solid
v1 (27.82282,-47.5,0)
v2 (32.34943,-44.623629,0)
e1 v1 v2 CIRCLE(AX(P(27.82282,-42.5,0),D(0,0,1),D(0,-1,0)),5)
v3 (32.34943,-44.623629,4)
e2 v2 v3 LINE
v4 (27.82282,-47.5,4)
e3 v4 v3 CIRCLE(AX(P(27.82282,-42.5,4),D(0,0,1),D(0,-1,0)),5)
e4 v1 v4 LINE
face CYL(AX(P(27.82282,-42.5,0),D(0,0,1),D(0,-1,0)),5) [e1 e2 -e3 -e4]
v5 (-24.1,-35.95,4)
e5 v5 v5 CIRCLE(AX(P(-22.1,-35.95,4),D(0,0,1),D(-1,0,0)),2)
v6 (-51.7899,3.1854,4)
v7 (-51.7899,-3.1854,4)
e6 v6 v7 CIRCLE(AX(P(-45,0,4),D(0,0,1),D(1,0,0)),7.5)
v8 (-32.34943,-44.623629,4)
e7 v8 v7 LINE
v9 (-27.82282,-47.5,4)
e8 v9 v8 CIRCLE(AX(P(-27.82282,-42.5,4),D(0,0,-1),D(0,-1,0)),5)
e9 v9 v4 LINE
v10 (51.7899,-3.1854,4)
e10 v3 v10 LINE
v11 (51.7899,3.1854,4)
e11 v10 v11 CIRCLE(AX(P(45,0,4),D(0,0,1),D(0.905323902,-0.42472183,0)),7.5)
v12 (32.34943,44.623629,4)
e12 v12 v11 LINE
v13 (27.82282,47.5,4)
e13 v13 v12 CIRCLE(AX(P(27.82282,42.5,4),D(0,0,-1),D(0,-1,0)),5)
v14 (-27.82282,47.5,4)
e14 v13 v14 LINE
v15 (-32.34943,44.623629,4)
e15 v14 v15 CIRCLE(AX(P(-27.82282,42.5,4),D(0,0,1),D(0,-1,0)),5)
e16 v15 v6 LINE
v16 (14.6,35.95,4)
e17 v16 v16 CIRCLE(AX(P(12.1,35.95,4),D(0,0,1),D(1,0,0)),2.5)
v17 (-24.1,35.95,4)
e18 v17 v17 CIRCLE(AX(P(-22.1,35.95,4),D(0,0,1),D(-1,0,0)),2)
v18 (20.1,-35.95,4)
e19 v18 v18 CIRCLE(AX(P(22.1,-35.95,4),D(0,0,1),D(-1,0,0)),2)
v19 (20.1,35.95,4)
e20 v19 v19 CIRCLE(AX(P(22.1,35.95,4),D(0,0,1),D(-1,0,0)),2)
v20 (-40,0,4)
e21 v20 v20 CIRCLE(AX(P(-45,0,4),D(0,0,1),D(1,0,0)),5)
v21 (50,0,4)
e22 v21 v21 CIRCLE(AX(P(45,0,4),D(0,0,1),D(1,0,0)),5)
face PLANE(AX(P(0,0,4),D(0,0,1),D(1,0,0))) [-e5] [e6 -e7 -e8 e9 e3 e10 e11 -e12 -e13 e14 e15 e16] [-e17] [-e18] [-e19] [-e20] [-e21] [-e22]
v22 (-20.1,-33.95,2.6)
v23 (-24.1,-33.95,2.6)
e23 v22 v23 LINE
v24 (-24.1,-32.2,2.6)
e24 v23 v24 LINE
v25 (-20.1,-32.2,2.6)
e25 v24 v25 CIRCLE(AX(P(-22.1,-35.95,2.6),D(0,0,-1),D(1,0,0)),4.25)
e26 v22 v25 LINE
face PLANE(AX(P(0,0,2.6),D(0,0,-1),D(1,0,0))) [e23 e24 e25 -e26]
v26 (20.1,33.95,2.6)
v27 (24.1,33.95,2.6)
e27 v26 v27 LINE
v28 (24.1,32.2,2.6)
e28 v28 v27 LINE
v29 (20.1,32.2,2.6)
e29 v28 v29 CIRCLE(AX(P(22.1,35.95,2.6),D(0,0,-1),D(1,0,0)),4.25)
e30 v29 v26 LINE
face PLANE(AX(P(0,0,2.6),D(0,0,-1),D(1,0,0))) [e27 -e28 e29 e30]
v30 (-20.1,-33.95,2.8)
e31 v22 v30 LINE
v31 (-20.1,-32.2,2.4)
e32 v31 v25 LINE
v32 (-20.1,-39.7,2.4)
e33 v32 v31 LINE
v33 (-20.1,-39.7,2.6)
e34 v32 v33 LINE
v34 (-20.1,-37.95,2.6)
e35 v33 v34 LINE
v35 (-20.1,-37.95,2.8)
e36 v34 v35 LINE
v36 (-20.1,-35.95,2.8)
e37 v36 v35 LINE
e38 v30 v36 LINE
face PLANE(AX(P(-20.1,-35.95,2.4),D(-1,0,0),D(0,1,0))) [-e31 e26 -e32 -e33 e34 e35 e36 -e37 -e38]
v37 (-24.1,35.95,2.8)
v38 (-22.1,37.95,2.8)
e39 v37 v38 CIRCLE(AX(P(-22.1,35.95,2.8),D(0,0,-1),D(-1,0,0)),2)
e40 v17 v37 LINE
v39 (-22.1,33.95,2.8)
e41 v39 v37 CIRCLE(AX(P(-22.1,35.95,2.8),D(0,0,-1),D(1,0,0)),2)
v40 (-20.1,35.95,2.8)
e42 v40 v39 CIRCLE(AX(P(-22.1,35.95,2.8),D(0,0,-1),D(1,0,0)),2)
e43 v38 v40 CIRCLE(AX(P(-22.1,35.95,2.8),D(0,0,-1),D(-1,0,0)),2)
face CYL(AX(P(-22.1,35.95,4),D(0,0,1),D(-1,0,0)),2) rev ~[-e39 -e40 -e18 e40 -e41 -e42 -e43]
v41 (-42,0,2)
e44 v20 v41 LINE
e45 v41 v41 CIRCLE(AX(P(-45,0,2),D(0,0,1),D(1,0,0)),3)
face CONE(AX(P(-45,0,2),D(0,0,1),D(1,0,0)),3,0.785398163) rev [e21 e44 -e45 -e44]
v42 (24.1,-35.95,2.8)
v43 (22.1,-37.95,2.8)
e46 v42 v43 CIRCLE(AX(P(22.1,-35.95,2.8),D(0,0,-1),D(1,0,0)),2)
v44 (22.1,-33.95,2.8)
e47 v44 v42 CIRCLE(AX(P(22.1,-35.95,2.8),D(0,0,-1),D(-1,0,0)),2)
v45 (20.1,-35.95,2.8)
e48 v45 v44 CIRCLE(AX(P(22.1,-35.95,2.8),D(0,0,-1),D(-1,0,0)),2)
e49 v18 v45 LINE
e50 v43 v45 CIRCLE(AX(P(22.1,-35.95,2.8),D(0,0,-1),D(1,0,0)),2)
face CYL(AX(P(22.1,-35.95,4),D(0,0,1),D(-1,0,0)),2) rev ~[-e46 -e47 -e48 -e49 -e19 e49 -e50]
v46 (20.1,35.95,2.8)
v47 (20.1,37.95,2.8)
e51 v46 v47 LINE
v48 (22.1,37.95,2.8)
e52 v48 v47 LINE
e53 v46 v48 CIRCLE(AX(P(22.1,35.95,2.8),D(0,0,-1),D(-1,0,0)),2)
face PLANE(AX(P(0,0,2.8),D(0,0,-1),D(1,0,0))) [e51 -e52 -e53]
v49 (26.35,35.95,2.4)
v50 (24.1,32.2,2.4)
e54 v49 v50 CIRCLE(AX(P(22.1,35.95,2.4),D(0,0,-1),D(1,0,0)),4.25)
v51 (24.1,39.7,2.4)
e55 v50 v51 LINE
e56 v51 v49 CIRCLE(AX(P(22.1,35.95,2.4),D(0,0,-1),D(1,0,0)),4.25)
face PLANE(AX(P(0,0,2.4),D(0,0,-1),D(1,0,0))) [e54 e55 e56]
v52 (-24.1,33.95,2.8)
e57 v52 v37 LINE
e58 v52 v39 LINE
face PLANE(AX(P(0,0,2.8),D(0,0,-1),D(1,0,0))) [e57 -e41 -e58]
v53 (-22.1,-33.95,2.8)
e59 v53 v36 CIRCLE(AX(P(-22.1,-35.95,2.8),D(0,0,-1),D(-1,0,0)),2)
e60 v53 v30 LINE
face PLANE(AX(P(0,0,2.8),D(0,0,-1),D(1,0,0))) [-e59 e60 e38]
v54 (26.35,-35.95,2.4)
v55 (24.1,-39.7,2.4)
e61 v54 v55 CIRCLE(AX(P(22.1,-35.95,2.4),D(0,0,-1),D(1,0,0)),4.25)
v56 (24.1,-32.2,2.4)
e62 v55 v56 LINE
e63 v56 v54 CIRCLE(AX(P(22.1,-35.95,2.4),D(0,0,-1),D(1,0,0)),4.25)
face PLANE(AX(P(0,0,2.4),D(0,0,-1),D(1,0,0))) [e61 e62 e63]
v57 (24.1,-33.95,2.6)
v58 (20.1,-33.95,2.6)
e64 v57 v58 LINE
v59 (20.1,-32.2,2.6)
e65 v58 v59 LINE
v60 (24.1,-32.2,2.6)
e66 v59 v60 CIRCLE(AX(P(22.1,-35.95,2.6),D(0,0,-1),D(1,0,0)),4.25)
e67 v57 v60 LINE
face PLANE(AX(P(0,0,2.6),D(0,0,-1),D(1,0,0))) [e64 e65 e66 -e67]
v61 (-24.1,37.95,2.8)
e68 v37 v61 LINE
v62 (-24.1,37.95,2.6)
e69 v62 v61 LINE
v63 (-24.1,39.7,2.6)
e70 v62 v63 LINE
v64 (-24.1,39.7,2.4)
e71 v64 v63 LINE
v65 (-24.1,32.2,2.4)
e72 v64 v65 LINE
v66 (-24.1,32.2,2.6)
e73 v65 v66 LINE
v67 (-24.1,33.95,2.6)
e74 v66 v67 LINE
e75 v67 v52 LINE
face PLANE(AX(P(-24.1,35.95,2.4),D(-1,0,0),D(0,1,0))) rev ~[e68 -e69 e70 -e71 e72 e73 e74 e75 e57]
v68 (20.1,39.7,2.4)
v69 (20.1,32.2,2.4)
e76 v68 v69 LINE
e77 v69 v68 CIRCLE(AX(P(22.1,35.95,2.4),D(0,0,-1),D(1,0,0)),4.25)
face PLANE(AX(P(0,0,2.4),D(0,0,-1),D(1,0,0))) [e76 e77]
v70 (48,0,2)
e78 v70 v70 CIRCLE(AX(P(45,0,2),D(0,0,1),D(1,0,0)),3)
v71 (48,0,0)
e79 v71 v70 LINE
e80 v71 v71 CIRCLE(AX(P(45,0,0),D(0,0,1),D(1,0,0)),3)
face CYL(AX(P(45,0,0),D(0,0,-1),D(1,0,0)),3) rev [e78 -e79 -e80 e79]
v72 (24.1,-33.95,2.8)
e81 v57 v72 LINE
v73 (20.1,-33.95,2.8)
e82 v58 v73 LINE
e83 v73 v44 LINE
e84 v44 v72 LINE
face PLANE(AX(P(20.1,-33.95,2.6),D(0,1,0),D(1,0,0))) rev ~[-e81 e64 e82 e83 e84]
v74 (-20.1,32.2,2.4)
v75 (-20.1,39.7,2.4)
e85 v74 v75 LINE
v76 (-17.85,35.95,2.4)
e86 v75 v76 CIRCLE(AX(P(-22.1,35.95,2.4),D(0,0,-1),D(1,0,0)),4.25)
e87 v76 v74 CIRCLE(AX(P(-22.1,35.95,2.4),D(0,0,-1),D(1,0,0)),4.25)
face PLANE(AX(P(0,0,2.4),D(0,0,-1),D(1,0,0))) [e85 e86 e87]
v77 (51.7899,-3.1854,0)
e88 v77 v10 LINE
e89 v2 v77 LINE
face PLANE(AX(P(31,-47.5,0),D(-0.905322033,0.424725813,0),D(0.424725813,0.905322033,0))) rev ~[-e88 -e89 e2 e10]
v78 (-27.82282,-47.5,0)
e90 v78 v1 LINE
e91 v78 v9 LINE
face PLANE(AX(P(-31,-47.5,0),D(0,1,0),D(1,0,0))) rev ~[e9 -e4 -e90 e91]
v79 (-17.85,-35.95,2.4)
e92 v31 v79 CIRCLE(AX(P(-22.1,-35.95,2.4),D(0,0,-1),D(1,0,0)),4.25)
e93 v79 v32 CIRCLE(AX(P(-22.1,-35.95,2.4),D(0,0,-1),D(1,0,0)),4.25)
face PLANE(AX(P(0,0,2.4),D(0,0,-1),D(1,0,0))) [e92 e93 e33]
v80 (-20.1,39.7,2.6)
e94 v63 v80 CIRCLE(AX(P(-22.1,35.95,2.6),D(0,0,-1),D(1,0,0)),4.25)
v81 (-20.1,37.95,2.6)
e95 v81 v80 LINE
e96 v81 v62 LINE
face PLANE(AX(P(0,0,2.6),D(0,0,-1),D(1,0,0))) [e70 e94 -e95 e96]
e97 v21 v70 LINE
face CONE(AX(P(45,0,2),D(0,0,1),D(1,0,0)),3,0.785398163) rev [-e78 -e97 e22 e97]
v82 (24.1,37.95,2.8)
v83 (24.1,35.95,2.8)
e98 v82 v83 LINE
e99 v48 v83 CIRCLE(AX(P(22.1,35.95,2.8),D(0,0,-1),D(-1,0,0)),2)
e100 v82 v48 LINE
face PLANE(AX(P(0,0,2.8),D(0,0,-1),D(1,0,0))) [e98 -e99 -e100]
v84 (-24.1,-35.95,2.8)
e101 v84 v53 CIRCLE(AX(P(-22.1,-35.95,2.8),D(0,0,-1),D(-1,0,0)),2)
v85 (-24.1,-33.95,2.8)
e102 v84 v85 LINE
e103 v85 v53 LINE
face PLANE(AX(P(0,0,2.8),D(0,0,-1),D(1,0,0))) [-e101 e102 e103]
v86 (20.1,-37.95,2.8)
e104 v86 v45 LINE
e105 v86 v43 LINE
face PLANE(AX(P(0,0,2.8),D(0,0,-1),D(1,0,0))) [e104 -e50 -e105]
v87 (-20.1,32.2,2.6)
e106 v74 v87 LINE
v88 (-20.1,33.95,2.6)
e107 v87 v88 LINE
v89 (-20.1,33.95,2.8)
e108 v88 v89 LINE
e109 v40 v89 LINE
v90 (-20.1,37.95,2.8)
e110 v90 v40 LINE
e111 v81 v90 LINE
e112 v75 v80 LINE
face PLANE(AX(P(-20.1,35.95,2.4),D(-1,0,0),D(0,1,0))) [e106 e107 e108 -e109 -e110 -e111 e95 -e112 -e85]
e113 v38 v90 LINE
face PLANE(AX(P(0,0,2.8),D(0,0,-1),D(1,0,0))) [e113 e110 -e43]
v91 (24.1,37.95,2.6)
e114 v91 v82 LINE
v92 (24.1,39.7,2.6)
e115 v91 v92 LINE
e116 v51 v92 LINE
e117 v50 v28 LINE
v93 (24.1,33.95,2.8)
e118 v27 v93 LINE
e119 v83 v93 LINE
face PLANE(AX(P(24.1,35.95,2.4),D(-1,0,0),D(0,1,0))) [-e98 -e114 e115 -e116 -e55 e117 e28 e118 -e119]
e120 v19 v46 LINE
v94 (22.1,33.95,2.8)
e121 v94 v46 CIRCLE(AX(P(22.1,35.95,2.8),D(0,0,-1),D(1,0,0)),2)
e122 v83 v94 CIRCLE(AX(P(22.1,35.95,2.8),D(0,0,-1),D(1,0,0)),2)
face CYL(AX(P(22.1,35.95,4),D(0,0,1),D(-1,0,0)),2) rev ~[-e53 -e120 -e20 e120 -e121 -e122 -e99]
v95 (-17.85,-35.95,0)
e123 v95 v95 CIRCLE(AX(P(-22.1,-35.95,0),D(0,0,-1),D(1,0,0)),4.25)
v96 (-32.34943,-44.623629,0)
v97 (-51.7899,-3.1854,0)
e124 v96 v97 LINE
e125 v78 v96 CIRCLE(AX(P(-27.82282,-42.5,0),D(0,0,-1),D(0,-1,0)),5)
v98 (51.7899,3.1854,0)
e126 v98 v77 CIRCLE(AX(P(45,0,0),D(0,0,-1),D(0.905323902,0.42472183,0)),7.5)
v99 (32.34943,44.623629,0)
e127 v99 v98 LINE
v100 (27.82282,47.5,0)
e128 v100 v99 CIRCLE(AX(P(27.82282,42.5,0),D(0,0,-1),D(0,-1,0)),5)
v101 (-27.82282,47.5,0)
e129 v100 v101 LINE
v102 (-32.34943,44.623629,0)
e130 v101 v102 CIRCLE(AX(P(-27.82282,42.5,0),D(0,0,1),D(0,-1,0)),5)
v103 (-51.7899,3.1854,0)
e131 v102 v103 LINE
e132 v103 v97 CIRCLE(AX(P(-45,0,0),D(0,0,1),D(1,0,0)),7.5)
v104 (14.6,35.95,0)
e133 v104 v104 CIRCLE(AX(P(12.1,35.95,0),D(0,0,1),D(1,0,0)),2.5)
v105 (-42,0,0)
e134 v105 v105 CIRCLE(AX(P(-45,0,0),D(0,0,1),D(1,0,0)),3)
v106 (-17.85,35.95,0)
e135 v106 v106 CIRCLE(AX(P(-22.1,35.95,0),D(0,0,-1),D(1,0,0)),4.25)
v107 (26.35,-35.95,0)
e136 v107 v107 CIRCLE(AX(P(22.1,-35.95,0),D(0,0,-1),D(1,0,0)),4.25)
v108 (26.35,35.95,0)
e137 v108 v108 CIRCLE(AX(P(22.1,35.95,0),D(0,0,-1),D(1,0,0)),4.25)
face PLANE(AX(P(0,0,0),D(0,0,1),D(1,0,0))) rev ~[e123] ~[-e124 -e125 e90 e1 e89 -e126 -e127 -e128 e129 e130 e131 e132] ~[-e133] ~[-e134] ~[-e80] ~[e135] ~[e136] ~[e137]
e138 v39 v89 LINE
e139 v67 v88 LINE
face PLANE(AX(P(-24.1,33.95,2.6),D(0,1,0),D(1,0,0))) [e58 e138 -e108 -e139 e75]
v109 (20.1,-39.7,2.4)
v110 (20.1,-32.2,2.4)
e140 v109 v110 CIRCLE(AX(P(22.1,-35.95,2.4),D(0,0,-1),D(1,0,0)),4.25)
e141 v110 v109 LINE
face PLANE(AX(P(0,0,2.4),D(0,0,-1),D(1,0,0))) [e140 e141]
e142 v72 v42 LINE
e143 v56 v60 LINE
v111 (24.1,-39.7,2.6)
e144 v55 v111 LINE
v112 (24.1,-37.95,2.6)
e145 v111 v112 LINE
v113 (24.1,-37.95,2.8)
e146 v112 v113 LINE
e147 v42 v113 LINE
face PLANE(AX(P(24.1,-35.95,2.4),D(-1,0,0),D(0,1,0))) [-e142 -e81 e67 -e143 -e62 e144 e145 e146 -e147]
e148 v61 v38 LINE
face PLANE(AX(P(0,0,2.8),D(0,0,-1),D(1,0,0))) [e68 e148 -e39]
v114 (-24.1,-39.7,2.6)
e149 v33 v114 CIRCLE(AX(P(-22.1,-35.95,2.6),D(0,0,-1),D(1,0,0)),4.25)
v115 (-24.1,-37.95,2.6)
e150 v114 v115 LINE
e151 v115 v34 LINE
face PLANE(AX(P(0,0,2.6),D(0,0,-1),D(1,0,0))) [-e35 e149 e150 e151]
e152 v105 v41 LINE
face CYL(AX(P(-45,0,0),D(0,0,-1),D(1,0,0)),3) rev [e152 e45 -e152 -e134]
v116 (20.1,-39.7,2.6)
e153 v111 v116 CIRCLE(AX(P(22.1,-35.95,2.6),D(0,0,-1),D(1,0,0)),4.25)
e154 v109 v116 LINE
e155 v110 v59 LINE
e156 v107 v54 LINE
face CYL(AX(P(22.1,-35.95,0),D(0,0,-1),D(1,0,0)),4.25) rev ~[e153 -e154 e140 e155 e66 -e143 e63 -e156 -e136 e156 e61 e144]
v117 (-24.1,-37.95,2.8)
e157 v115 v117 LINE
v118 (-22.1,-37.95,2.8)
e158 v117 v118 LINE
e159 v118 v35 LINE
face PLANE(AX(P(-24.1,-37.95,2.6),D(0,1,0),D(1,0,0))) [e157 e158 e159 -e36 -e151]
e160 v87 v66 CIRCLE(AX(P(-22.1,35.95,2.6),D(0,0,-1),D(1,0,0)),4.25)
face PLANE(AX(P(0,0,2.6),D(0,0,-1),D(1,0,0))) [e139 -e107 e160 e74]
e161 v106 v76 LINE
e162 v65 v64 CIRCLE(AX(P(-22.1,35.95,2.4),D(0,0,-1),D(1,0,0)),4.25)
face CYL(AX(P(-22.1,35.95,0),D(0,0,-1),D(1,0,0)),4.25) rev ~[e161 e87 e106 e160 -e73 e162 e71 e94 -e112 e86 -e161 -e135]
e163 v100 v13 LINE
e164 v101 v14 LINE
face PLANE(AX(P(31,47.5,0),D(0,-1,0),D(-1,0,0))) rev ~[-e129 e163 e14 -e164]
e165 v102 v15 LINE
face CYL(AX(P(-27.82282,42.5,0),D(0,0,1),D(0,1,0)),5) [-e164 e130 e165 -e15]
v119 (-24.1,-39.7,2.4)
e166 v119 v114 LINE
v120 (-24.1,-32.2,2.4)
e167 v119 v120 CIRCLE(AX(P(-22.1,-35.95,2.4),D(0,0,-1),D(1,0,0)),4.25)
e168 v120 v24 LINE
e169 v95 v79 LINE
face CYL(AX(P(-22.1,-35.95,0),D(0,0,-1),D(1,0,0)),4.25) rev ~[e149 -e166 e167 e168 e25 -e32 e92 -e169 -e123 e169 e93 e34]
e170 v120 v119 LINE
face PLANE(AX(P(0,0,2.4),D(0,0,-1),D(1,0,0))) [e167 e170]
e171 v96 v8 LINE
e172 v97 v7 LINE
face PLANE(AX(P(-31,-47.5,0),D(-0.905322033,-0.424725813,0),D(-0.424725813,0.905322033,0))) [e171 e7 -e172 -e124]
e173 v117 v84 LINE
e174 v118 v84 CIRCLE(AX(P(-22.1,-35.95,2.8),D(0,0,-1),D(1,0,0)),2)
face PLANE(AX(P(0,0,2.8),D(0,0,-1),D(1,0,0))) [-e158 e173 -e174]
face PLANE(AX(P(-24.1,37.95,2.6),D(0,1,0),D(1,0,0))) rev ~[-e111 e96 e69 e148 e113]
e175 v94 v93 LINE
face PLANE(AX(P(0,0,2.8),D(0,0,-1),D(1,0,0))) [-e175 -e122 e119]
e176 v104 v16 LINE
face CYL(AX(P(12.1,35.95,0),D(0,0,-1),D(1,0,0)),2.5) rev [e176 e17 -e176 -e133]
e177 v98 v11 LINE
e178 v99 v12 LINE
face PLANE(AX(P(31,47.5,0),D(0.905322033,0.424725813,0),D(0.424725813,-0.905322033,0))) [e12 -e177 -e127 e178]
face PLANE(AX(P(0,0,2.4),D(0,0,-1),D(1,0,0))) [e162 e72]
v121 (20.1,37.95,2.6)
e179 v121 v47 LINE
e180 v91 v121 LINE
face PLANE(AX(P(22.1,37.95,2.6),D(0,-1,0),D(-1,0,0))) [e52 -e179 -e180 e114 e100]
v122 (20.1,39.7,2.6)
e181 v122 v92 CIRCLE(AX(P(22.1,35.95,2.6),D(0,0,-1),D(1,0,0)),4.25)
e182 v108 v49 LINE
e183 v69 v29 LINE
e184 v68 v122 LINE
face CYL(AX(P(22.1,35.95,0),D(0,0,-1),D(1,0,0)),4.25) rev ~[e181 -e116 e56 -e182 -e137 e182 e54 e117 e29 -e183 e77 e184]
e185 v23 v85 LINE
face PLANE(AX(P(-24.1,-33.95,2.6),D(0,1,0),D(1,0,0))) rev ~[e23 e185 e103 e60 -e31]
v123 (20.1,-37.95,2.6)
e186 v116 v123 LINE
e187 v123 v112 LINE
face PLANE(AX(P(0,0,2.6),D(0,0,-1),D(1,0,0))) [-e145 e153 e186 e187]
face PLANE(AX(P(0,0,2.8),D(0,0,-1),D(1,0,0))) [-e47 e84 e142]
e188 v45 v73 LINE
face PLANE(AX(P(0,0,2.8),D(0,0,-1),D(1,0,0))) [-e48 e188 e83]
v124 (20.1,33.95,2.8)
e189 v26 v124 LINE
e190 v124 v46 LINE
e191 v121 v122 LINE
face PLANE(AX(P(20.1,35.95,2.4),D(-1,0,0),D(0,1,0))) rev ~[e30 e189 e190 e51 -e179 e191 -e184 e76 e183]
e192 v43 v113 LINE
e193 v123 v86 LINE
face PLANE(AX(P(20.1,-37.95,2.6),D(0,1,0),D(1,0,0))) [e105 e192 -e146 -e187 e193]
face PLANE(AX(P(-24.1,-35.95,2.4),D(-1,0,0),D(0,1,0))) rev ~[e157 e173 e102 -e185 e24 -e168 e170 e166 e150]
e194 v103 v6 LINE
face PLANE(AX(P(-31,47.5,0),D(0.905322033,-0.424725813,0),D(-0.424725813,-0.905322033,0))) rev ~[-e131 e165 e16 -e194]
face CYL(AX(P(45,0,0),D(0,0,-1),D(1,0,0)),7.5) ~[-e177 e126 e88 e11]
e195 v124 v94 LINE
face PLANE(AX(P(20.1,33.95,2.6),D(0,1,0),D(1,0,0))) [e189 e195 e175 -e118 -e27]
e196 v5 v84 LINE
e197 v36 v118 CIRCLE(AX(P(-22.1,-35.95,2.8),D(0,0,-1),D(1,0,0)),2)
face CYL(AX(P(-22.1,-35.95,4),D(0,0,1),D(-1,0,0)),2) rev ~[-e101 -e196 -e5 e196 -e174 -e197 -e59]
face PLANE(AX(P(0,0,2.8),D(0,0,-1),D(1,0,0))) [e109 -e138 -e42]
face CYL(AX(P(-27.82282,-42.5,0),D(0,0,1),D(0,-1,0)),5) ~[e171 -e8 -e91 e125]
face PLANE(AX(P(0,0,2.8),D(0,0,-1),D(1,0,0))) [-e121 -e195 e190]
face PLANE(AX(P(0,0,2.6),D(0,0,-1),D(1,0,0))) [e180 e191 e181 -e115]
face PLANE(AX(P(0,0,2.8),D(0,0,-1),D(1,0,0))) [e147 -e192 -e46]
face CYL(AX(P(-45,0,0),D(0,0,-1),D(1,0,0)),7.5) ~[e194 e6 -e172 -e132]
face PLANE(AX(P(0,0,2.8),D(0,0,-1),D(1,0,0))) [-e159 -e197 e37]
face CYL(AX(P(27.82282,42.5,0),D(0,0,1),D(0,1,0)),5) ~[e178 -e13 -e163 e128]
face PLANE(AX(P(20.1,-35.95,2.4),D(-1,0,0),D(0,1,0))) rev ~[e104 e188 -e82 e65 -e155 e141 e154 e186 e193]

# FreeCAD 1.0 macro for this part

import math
import FreeCAD as App
import Part
import Sketcher
Q = App.Units.Quantity


def edges_at(feature, points):
    """Names of the edges that pass closest to the given points."""
    edges = feature.Shape.Edges
    near = lambda p: min(range(len(edges)), key=lambda i: edges[i].distToShape(Part.Vertex(*p))[0])
    return sorted({f"Edge{near(p) + 1}" for p in points})

doc = App.newDocument("Part")
body = doc.addObject("PartDesign::Body", "Body")

sketch1 = doc.addObject("Sketcher::SketchObject", "Sketch")
body.addObject(sketch1)
sketch1.AttachmentSupport = (doc.XY_Plane, [""])
sketch1.MapMode = "FlatFace"
sketch1.addGeometry(Part.LineSegment(App.Vector(-31, -47.5, 0), App.Vector(31, -47.5, 0)), False)
sketch1.addGeometry(Part.LineSegment(App.Vector(31, -47.5, 0), App.Vector(51.7899, -3.1854, 0)), False)
sketch1.addGeometry(Part.ArcOfCircle(Part.Circle(App.Vector(45, 0, 0), App.Vector(0, 0, 1), 7.5), math.radians(-25.133057), math.radians(25.133057)), False)
sketch1.addGeometry(Part.LineSegment(App.Vector(51.7899, 3.1854, 0), App.Vector(31, 47.5, 0)), False)
sketch1.addGeometry(Part.LineSegment(App.Vector(31, 47.5, 0), App.Vector(-31, 47.5, 0)), False)
sketch1.addGeometry(Part.LineSegment(App.Vector(-31, 47.5, 0), App.Vector(-51.7899, 3.1854, 0)), False)
sketch1.addGeometry(Part.ArcOfCircle(Part.Circle(App.Vector(-45, 0, 0), App.Vector(0, 0, 1), 7.5), math.radians(154.866943), math.radians(205.133057)), False)
sketch1.addGeometry(Part.LineSegment(App.Vector(-51.7899, -3.1854, 0), App.Vector(-31, -47.5, 0)), False)
sketch1.addGeometry(Part.Circle(App.Vector(-22.1, -35.95, 0), App.Vector(0, 0, 1), 1.7), False)
sketch1.addGeometry(Part.Circle(App.Vector(22.1, -35.95, 0), App.Vector(0, 0, 1), 1.7), False)
sketch1.addGeometry(Part.Circle(App.Vector(-22.1, 35.95, 0), App.Vector(0, 0, 1), 1.7), False)
sketch1.addGeometry(Part.Circle(App.Vector(12.1, 35.95, 0), App.Vector(0, 0, 1), 2.5), False)
sketch1.addGeometry(Part.Circle(App.Vector(22.1, 35.95, 0), App.Vector(0, 0, 1), 1.7), False)
sketch1.addGeometry(Part.Circle(App.Vector(45, 0, 0), App.Vector(0, 0, 1), 3), False)
sketch1.addGeometry(Part.Circle(App.Vector(-45, 0, 0), App.Vector(0, 0, 1), 3), False)
sketch1.addConstraint(Sketcher.Constraint("Coincident", 0, 2, 1, 1))
sketch1.addConstraint(Sketcher.Constraint("Tangent", 1, 2, 2, 1))
sketch1.addConstraint(Sketcher.Constraint("Tangent", 2, 2, 3, 1))
sketch1.addConstraint(Sketcher.Constraint("Coincident", 3, 2, 4, 1))
sketch1.addConstraint(Sketcher.Constraint("Coincident", 4, 2, 5, 1))
sketch1.addConstraint(Sketcher.Constraint("Tangent", 5, 2, 6, 1))
sketch1.addConstraint(Sketcher.Constraint("Tangent", 6, 2, 7, 1))
sketch1.addConstraint(Sketcher.Constraint("Coincident", 7, 2, 0, 1))
sketch1.addConstraint(Sketcher.Constraint("Horizontal", 0))
sketch1.addConstraint(Sketcher.Constraint("Horizontal", 4))
sketch1.addConstraint(Sketcher.Constraint("Coincident", 13, 3, 2, 3))
sketch1.addConstraint(Sketcher.Constraint("Coincident", 14, 3, 6, 3))
sketch1.addConstraint(Sketcher.Constraint("Equal", 2, 6))
sketch1.addConstraint(Sketcher.Constraint("Equal", 8, 9))
sketch1.addConstraint(Sketcher.Constraint("Equal", 9, 10))
sketch1.addConstraint(Sketcher.Constraint("Equal", 10, 12))
sketch1.addConstraint(Sketcher.Constraint("Equal", 13, 14))
sketch1.addConstraint(Sketcher.Constraint("Symmetric", 2, 3, 6, 3, -1, 1))
sketch1.addConstraint(Sketcher.Constraint("Symmetric", 9, 3, 10, 3, -1, 1))
sketch1.addConstraint(Sketcher.Constraint("Symmetric", 8, 3, 12, 3, -1, 1))
sketch1.addConstraint(Sketcher.Constraint("Symmetric", 0, 2, 4, 2, -1, 1))
sketch1.addConstraint(Sketcher.Constraint("Symmetric", 8, 3, 9, 3, -2))
sketch1.addConstraint(Sketcher.Constraint("Symmetric", 2, 2, 5, 2, -2))
sketch1.addConstraint(Sketcher.Constraint("Parallel", 3, 7))
sketch1.addConstraint(Sketcher.Constraint("Horizontal", 10, 3, 11, 3))
sketch1.addConstraint(Sketcher.Constraint("Diameter", 11, Q("5 mm")))
sketch1.addConstraint(Sketcher.Constraint("Diameter", 13, Q("6 mm")))
sketch1.addConstraint(Sketcher.Constraint("Radius", 2, Q("7.5 mm")))
sketch1.addConstraint(Sketcher.Constraint("DistanceX", 0, 1, 0, 2, Q("62 mm")))
sketch1.addConstraint(Sketcher.Constraint("DistanceX", -1, 1, 2, 3, Q("45 mm")))
sketch1.addConstraint(Sketcher.Constraint("DistanceX", 11, 3, 9, 3, Q("10 mm")))
sketch1.addConstraint(Sketcher.Constraint("Diameter", 8, Q("3.4 mm")))
sketch1.addConstraint(Sketcher.Constraint("DistanceX", 8, 3, -1, 1, Q("22.1 mm")))
sketch1.addConstraint(Sketcher.Constraint("DistanceY", 0, 2, -1, 1, Q("47.5 mm")))
sketch1.addConstraint(Sketcher.Constraint("DistanceY", 8, 3, 10, 3, Q("71.9 mm")))
pad1 = doc.addObject("PartDesign::Pad", "Pad")
body.addObject(pad1)
pad1.Profile = sketch1
pad1.Length = 4
doc.recompute()

fillet = doc.addObject("PartDesign::Fillet", "Fillet")
body.addObject(fillet)
fillet.Base = (pad1, edges_at(pad1, [
    (31, 47.5, 2),
    (-31, 47.5, 2),
    (31, -47.5, 2),
    (-31, -47.5, 2),
]))
fillet.Radius = 5

sketch2 = doc.addObject("Sketcher::SketchObject", "Sketch001")
body.addObject(sketch2)
sketch2.AttachmentSupport = (doc.XY_Plane, [""])
sketch2.MapMode = "FlatFace"
sketch2.addGeometry(Part.Circle(App.Vector(22.1, 35.95, 0), App.Vector(0, 0, 1), 4.25), False)
sketch2.addGeometry(Part.Circle(App.Vector(22.1, 35.95, 0), App.Vector(0, 0, 1), 1.7), False)
sketch2.addGeometry(Part.Circle(App.Vector(-22.1, 35.95, 0), App.Vector(0, 0, 1), 4.25), False)
sketch2.addGeometry(Part.Circle(App.Vector(-22.1, 35.95, 0), App.Vector(0, 0, 1), 1.7), False)
sketch2.addGeometry(Part.Circle(App.Vector(-22.1, -35.95, 0), App.Vector(0, 0, 1), 4.25), False)
sketch2.addGeometry(Part.Circle(App.Vector(-22.1, -35.95, 0), App.Vector(0, 0, 1), 1.7), False)
sketch2.addGeometry(Part.Circle(App.Vector(22.1, -35.95, 0), App.Vector(0, 0, 1), 4.25), False)
sketch2.addGeometry(Part.Circle(App.Vector(22.1, -35.95, 0), App.Vector(0, 0, 1), 1.7), False)
sketch2.addConstraint(Sketcher.Constraint("Coincident", 1, 3, 0, 3))
sketch2.addConstraint(Sketcher.Constraint("Coincident", 3, 3, 2, 3))
sketch2.addConstraint(Sketcher.Constraint("Coincident", 5, 3, 4, 3))
sketch2.addConstraint(Sketcher.Constraint("Coincident", 7, 3, 6, 3))
sketch2.addConstraint(Sketcher.Constraint("Equal", 0, 2))
sketch2.addConstraint(Sketcher.Constraint("Equal", 1, 3))
sketch2.addConstraint(Sketcher.Constraint("Equal", 2, 4))
sketch2.addConstraint(Sketcher.Constraint("Equal", 3, 5))
sketch2.addConstraint(Sketcher.Constraint("Equal", 4, 6))
sketch2.addConstraint(Sketcher.Constraint("Equal", 5, 7))
sketch2.addConstraint(Sketcher.Constraint("Symmetric", 0, 3, 4, 3, -1, 1))
sketch2.addConstraint(Sketcher.Constraint("Symmetric", 2, 3, 6, 3, -1, 1))
sketch2.addConstraint(Sketcher.Constraint("Symmetric", 0, 3, 2, 3, -2))
sketch2.addConstraint(Sketcher.Constraint("Diameter", 0, Q("8.5 mm")))
sketch2.addConstraint(Sketcher.Constraint("Diameter", 1, Q("3.4 mm")))
sketch2.addConstraint(Sketcher.Constraint("DistanceX", -1, 1, 0, 3, Q("22.1 mm")))
sketch2.addConstraint(Sketcher.Constraint("DistanceY", 4, 3, 2, 3, Q("71.9 mm")))
pocket1 = doc.addObject("PartDesign::Pocket", "Pocket")
body.addObject(pocket1)
pocket1.Profile = sketch2
pocket1.Length = 2.4
pocket1.Reversed = True

sketch3 = doc.addObject("Sketcher::SketchObject", "Sketch002")
body.addObject(sketch3)
sketch3.AttachmentSupport = (doc.XY_Plane, [""])
sketch3.MapMode = "FlatFace"
sketch3.AttachmentOffset = App.Placement(App.Vector(0, 0, 4), App.Rotation())
sketch3.addGeometry(Part.Circle(App.Vector(-22.1, 35.95, 0), App.Vector(0, 0, 1), 2), False)
sketch3.addGeometry(Part.Circle(App.Vector(-22.1, 35.95, 0), App.Vector(0, 0, 1), 1.7), False)
sketch3.addGeometry(Part.Circle(App.Vector(22.1, 35.95, 0), App.Vector(0, 0, 1), 2), False)
sketch3.addGeometry(Part.Circle(App.Vector(22.1, 35.95, 0), App.Vector(0, 0, 1), 1.7), False)
sketch3.addGeometry(Part.Circle(App.Vector(22.1, -35.95, 0), App.Vector(0, 0, 1), 2), False)
sketch3.addGeometry(Part.Circle(App.Vector(22.1, -35.95, 0), App.Vector(0, 0, 1), 1.7), False)
sketch3.addGeometry(Part.Circle(App.Vector(-22.1, -35.95, 0), App.Vector(0, 0, 1), 2), False)
sketch3.addGeometry(Part.Circle(App.Vector(-22.1, -35.95, 0), App.Vector(0, 0, 1), 1.7), False)
sketch3.addConstraint(Sketcher.Constraint("Coincident", 1, 3, 0, 3))
sketch3.addConstraint(Sketcher.Constraint("Coincident", 3, 3, 2, 3))
sketch3.addConstraint(Sketcher.Constraint("Coincident", 5, 3, 4, 3))
sketch3.addConstraint(Sketcher.Constraint("Coincident", 7, 3, 6, 3))
sketch3.addConstraint(Sketcher.Constraint("Equal", 0, 2))
sketch3.addConstraint(Sketcher.Constraint("Equal", 1, 3))
sketch3.addConstraint(Sketcher.Constraint("Equal", 2, 4))
sketch3.addConstraint(Sketcher.Constraint("Equal", 3, 5))
sketch3.addConstraint(Sketcher.Constraint("Equal", 4, 6))
sketch3.addConstraint(Sketcher.Constraint("Equal", 5, 7))
sketch3.addConstraint(Sketcher.Constraint("Symmetric", 0, 3, 4, 3, -1, 1))
sketch3.addConstraint(Sketcher.Constraint("Symmetric", 2, 3, 6, 3, -1, 1))
sketch3.addConstraint(Sketcher.Constraint("Symmetric", 0, 3, 2, 3, -2))
sketch3.addConstraint(Sketcher.Constraint("Diameter", 0, Q("4 mm")))
sketch3.addConstraint(Sketcher.Constraint("Diameter", 1, Q("3.4 mm")))
sketch3.addConstraint(Sketcher.Constraint("DistanceX", 0, 3, -1, 1, Q("22.1 mm")))
sketch3.addConstraint(Sketcher.Constraint("DistanceY", 4, 3, 2, 3, Q("71.9 mm")))
pocket2 = doc.addObject("PartDesign::Pocket", "Pocket001")
body.addObject(pocket2)
pocket2.Profile = sketch3
pocket2.Length = 1.6

sketch4 = doc.addObject("Sketcher::SketchObject", "Sketch003")
body.addObject(sketch4)
sketch4.AttachmentSupport = (doc.XY_Plane, [""])
sketch4.MapMode = "FlatFace"
sketch4.AttachmentOffset = App.Placement(App.Vector(0, 0, 2.4), App.Rotation())
sketch4.addGeometry(Part.LineSegment(App.Vector(-20.1, 39.7, 0), App.Vector(-20.1, 35.95, 0)), False)
sketch4.addGeometry(Part.ArcOfCircle(Part.Circle(App.Vector(-22.1, 35.95, 0), App.Vector(0, 0, 1), 2), math.radians(0), math.radians(180)), False)
sketch4.addGeometry(Part.LineSegment(App.Vector(-24.1, 35.95, 0), App.Vector(-24.1, 39.7, 0)), False)
sketch4.addGeometry(Part.ArcOfCircle(Part.Circle(App.Vector(-22.1, 35.95, 0), App.Vector(0, 0, 1), 4.25), math.radians(61.927513), math.radians(118.072487)), False)
sketch4.addGeometry(Part.ArcOfCircle(Part.Circle(App.Vector(-22.1, 35.95, 0), App.Vector(0, 0, 1), 2), math.radians(180), math.radians(360)), False)
sketch4.addGeometry(Part.LineSegment(App.Vector(-20.1, 35.95, 0), App.Vector(-20.1, 32.2, 0)), False)
sketch4.addGeometry(Part.ArcOfCircle(Part.Circle(App.Vector(-22.1, 35.95, 0), App.Vector(0, 0, 1), 4.25), math.radians(-118.072487), math.radians(-61.927513)), False)
sketch4.addGeometry(Part.LineSegment(App.Vector(-24.1, 32.2, 0), App.Vector(-24.1, 35.95, 0)), False)
sketch4.addGeometry(Part.LineSegment(App.Vector(-20.1, -32.2, 0), App.Vector(-20.1, -35.95, 0)), False)
sketch4.addGeometry(Part.ArcOfCircle(Part.Circle(App.Vector(-22.1, -35.95, 0), App.Vector(0, 0, 1), 2), math.radians(0), math.radians(180)), False)
sketch4.addGeometry(Part.LineSegment(App.Vector(-24.1, -35.95, 0), App.Vector(-24.1, -32.2, 0)), False)
sketch4.addGeometry(Part.ArcOfCircle(Part.Circle(App.Vector(-22.1, -35.95, 0), App.Vector(0, 0, 1), 4.25), math.radians(61.927513), math.radians(118.072487)), False)
sketch4.addGeometry(Part.ArcOfCircle(Part.Circle(App.Vector(-22.1, -35.95, 0), App.Vector(0, 0, 1), 2), math.radians(180), math.radians(360)), False)
sketch4.addGeometry(Part.LineSegment(App.Vector(-20.1, -35.95, 0), App.Vector(-20.1, -39.7, 0)), False)
sketch4.addGeometry(Part.ArcOfCircle(Part.Circle(App.Vector(-22.1, -35.95, 0), App.Vector(0, 0, 1), 4.25), math.radians(-118.072487), math.radians(-61.927513)), False)
sketch4.addGeometry(Part.LineSegment(App.Vector(-24.1, -39.7, 0), App.Vector(-24.1, -35.95, 0)), False)
sketch4.addGeometry(Part.LineSegment(App.Vector(24.1, -32.2, 0), App.Vector(24.1, -35.95, 0)), False)
sketch4.addGeometry(Part.ArcOfCircle(Part.Circle(App.Vector(22.1, -35.95, 0), App.Vector(0, 0, 1), 2), math.radians(0), math.radians(180)), False)
sketch4.addGeometry(Part.LineSegment(App.Vector(20.1, -35.95, 0), App.Vector(20.1, -32.2, 0)), False)
sketch4.addGeometry(Part.ArcOfCircle(Part.Circle(App.Vector(22.1, -35.95, 0), App.Vector(0, 0, 1), 4.25), math.radians(61.927513), math.radians(118.072487)), False)
sketch4.addGeometry(Part.ArcOfCircle(Part.Circle(App.Vector(22.1, -35.95, 0), App.Vector(0, 0, 1), 2), math.radians(180), math.radians(360)), False)
sketch4.addGeometry(Part.LineSegment(App.Vector(24.1, -35.95, 0), App.Vector(24.1, -39.7, 0)), False)
sketch4.addGeometry(Part.ArcOfCircle(Part.Circle(App.Vector(22.1, -35.95, 0), App.Vector(0, 0, 1), 4.25), math.radians(-118.072487), math.radians(-61.927513)), False)
sketch4.addGeometry(Part.LineSegment(App.Vector(20.1, -39.7, 0), App.Vector(20.1, -35.95, 0)), False)
sketch4.addGeometry(Part.LineSegment(App.Vector(24.1, 39.7, 0), App.Vector(24.1, 35.95, 0)), False)
sketch4.addGeometry(Part.ArcOfCircle(Part.Circle(App.Vector(22.1, 35.95, 0), App.Vector(0, 0, 1), 2), math.radians(0), math.radians(180)), False)
sketch4.addGeometry(Part.LineSegment(App.Vector(20.1, 35.95, 0), App.Vector(20.1, 39.7, 0)), False)
sketch4.addGeometry(Part.ArcOfCircle(Part.Circle(App.Vector(22.1, 35.95, 0), App.Vector(0, 0, 1), 4.25), math.radians(61.927513), math.radians(118.072487)), False)
sketch4.addGeometry(Part.ArcOfCircle(Part.Circle(App.Vector(22.1, 35.95, 0), App.Vector(0, 0, 1), 2), math.radians(180), math.radians(360)), False)
sketch4.addGeometry(Part.LineSegment(App.Vector(24.1, 35.95, 0), App.Vector(24.1, 32.2, 0)), False)
sketch4.addGeometry(Part.ArcOfCircle(Part.Circle(App.Vector(22.1, 35.95, 0), App.Vector(0, 0, 1), 4.25), math.radians(-118.072487), math.radians(-61.927513)), False)
sketch4.addGeometry(Part.LineSegment(App.Vector(20.1, 32.2, 0), App.Vector(20.1, 35.95, 0)), False)
sketch4.addConstraint(Sketcher.Constraint("Tangent", 0, 2, 1, 1))
sketch4.addConstraint(Sketcher.Constraint("Tangent", 1, 2, 2, 1))
sketch4.addConstraint(Sketcher.Constraint("Coincident", 2, 2, 3, 2))
sketch4.addConstraint(Sketcher.Constraint("Coincident", 3, 1, 0, 1))
sketch4.addConstraint(Sketcher.Constraint("Tangent", 4, 2, 5, 1))
sketch4.addConstraint(Sketcher.Constraint("Coincident", 5, 2, 6, 2))
sketch4.addConstraint(Sketcher.Constraint("Coincident", 6, 1, 7, 1))
sketch4.addConstraint(Sketcher.Constraint("Tangent", 7, 2, 4, 1))
sketch4.addConstraint(Sketcher.Constraint("Tangent", 8, 2, 9, 1))
sketch4.addConstraint(Sketcher.Constraint("Tangent", 9, 2, 10, 1))
sketch4.addConstraint(Sketcher.Constraint("Coincident", 10, 2, 11, 2))
sketch4.addConstraint(Sketcher.Constraint("Coincident", 11, 1, 8, 1))
sketch4.addConstraint(Sketcher.Constraint("Tangent", 12, 2, 13, 1))
sketch4.addConstraint(Sketcher.Constraint("Coincident", 13, 2, 14, 2))
sketch4.addConstraint(Sketcher.Constraint("Coincident", 14, 1, 15, 1))
sketch4.addConstraint(Sketcher.Constraint("Tangent", 15, 2, 12, 1))
sketch4.addConstraint(Sketcher.Constraint("Tangent", 16, 2, 17, 1))
sketch4.addConstraint(Sketcher.Constraint("Tangent", 17, 2, 18, 1))
sketch4.addConstraint(Sketcher.Constraint("Coincident", 18, 2, 19, 2))
sketch4.addConstraint(Sketcher.Constraint("Coincident", 19, 1, 16, 1))
sketch4.addConstraint(Sketcher.Constraint("Tangent", 20, 2, 21, 1))
sketch4.addConstraint(Sketcher.Constraint("Coincident", 21, 2, 22, 2))
sketch4.addConstraint(Sketcher.Constraint("Coincident", 22, 1, 23, 1))
sketch4.addConstraint(Sketcher.Constraint("Tangent", 23, 2, 20, 1))
sketch4.addConstraint(Sketcher.Constraint("Tangent", 24, 2, 25, 1))
sketch4.addConstraint(Sketcher.Constraint("Tangent", 25, 2, 26, 1))
sketch4.addConstraint(Sketcher.Constraint("Coincident", 26, 2, 27, 2))
sketch4.addConstraint(Sketcher.Constraint("Coincident", 27, 1, 24, 1))
sketch4.addConstraint(Sketcher.Constraint("Tangent", 28, 2, 29, 1))
sketch4.addConstraint(Sketcher.Constraint("Coincident", 29, 2, 30, 2))
sketch4.addConstraint(Sketcher.Constraint("Coincident", 30, 1, 31, 1))
sketch4.addConstraint(Sketcher.Constraint("Tangent", 31, 2, 28, 1))
sketch4.addConstraint(Sketcher.Constraint("Vertical", 0))
sketch4.addConstraint(Sketcher.Constraint("Vertical", 2))
sketch4.addConstraint(Sketcher.Constraint("Vertical", 5))
sketch4.addConstraint(Sketcher.Constraint("Vertical", 7))
sketch4.addConstraint(Sketcher.Constraint("Vertical", 8))
sketch4.addConstraint(Sketcher.Constraint("Vertical", 10))
sketch4.addConstraint(Sketcher.Constraint("Vertical", 13))
sketch4.addConstraint(Sketcher.Constraint("Vertical", 15))
sketch4.addConstraint(Sketcher.Constraint("Vertical", 16))
sketch4.addConstraint(Sketcher.Constraint("Vertical", 18))
sketch4.addConstraint(Sketcher.Constraint("Vertical", 21))
sketch4.addConstraint(Sketcher.Constraint("Vertical", 23))
sketch4.addConstraint(Sketcher.Constraint("Vertical", 24))
sketch4.addConstraint(Sketcher.Constraint("Vertical", 26))
sketch4.addConstraint(Sketcher.Constraint("Vertical", 29))
sketch4.addConstraint(Sketcher.Constraint("Vertical", 31))
sketch4.addConstraint(Sketcher.Constraint("Coincident", 3, 3, 1, 3))
sketch4.addConstraint(Sketcher.Constraint("Coincident", 4, 3, 1, 3))
sketch4.addConstraint(Sketcher.Constraint("Coincident", 6, 3, 1, 3))
sketch4.addConstraint(Sketcher.Constraint("Coincident", 11, 3, 9, 3))
sketch4.addConstraint(Sketcher.Constraint("Coincident", 12, 3, 9, 3))
sketch4.addConstraint(Sketcher.Constraint("Coincident", 14, 3, 9, 3))
sketch4.addConstraint(Sketcher.Constraint("Coincident", 19, 3, 17, 3))
sketch4.addConstraint(Sketcher.Constraint("Coincident", 20, 3, 17, 3))
sketch4.addConstraint(Sketcher.Constraint("Coincident", 22, 3, 17, 3))
sketch4.addConstraint(Sketcher.Constraint("Coincident", 27, 3, 25, 3))
sketch4.addConstraint(Sketcher.Constraint("Coincident", 28, 3, 25, 3))
sketch4.addConstraint(Sketcher.Constraint("Coincident", 30, 3, 25, 3))
sketch4.addConstraint(Sketcher.Constraint("Equal", 1, 4))
sketch4.addConstraint(Sketcher.Constraint("Equal", 3, 6))
sketch4.addConstraint(Sketcher.Constraint("Equal", 4, 9))
sketch4.addConstraint(Sketcher.Constraint("Equal", 6, 11))
sketch4.addConstraint(Sketcher.Constraint("Equal", 9, 12))
sketch4.addConstraint(Sketcher.Constraint("Equal", 11, 14))
sketch4.addConstraint(Sketcher.Constraint("Equal", 12, 17))
sketch4.addConstraint(Sketcher.Constraint("Equal", 14, 19))
sketch4.addConstraint(Sketcher.Constraint("Equal", 17, 20))
sketch4.addConstraint(Sketcher.Constraint("Equal", 19, 22))
sketch4.addConstraint(Sketcher.Constraint("Equal", 20, 25))
sketch4.addConstraint(Sketcher.Constraint("Equal", 22, 27))
sketch4.addConstraint(Sketcher.Constraint("Equal", 25, 28))
sketch4.addConstraint(Sketcher.Constraint("Equal", 27, 30))
sketch4.addConstraint(Sketcher.Constraint("Symmetric", 1, 3, 17, 3, -1, 1))
sketch4.addConstraint(Sketcher.Constraint("Symmetric", 9, 3, 25, 3, -1, 1))
sketch4.addConstraint(Sketcher.Constraint("Symmetric", 9, 3, 17, 3, -2))
sketch4.addConstraint(Sketcher.Constraint("Radius", 1, Q("2 mm")))
sketch4.addConstraint(Sketcher.Constraint("Radius", 3, Q("4.25 mm")))
sketch4.addConstraint(Sketcher.Constraint("DistanceX", 1, 3, -1, 1, Q("22.1 mm")))
sketch4.addConstraint(Sketcher.Constraint("DistanceY", -1, 1, 2, 2, Q("39.7 mm")))
pocket3 = doc.addObject("PartDesign::Pocket", "Pocket002")
body.addObject(pocket3)
pocket3.Profile = sketch4
pocket3.Length = 0.2
pocket3.Reversed = True

sketch5 = doc.addObject("Sketcher::SketchObject", "Sketch004")
body.addObject(sketch5)
sketch5.AttachmentSupport = (doc.XY_Plane, [""])
sketch5.MapMode = "FlatFace"
sketch5.AttachmentOffset = App.Placement(App.Vector(0, 0, 2.6), App.Rotation())
sketch5.addGeometry(Part.LineSegment(App.Vector(-22.1, -37.95, 0), App.Vector(-24.1, -37.95, 0)), False)
sketch5.addGeometry(Part.LineSegment(App.Vector(-24.1, -37.95, 0), App.Vector(-24.1, -35.95, 0)), False)
sketch5.addGeometry(Part.ArcOfCircle(Part.Circle(App.Vector(-22.1, -35.95, 0), App.Vector(0, 0, 1), 2), math.radians(180), math.radians(270)), False)
sketch5.addGeometry(Part.ArcOfCircle(Part.Circle(App.Vector(-22.1, -35.95, 0), App.Vector(0, 0, 1), 2), math.radians(90), math.radians(180)), False)
sketch5.addGeometry(Part.LineSegment(App.Vector(-24.1, -35.95, 0), App.Vector(-24.1, -33.95, 0)), False)
sketch5.addGeometry(Part.LineSegment(App.Vector(-24.1, -33.95, 0), App.Vector(-22.1, -33.95, 0)), False)
sketch5.addGeometry(Part.LineSegment(App.Vector(-20.1, -37.95, 0), App.Vector(-22.1, -37.95, 0)), False)
sketch5.addGeometry(Part.ArcOfCircle(Part.Circle(App.Vector(-22.1, -35.95, 0), App.Vector(0, 0, 1), 2), math.radians(-90), math.radians(0)), False)
sketch5.addGeometry(Part.LineSegment(App.Vector(-20.1, -35.95, 0), App.Vector(-20.1, -37.95, 0)), False)
sketch5.addGeometry(Part.ArcOfCircle(Part.Circle(App.Vector(-22.1, -35.95, 0), App.Vector(0, 0, 1), 2), math.radians(0), math.radians(90)), False)
sketch5.addGeometry(Part.LineSegment(App.Vector(-22.1, -33.95, 0), App.Vector(-20.1, -33.95, 0)), False)
sketch5.addGeometry(Part.LineSegment(App.Vector(-20.1, -33.95, 0), App.Vector(-20.1, -35.95, 0)), False)
sketch5.addGeometry(Part.LineSegment(App.Vector(20.1, -35.95, 0), App.Vector(20.1, -33.95, 0)), False)
sketch5.addGeometry(Part.LineSegment(App.Vector(20.1, -33.95, 0), App.Vector(22.1, -33.95, 0)), False)
sketch5.addGeometry(Part.ArcOfCircle(Part.Circle(App.Vector(22.1, -35.95, 0), App.Vector(0, 0, 1), 2), math.radians(90), math.radians(180)), False)
sketch5.addGeometry(Part.LineSegment(App.Vector(22.1, -33.95, 0), App.Vector(24.1, -33.95, 0)), False)
sketch5.addGeometry(Part.LineSegment(App.Vector(24.1, -33.95, 0), App.Vector(24.1, -35.95, 0)), False)
sketch5.addGeometry(Part.ArcOfCircle(Part.Circle(App.Vector(22.1, -35.95, 0), App.Vector(0, 0, 1), 2), math.radians(0), math.radians(90)), False)
sketch5.addGeometry(Part.LineSegment(App.Vector(20.1, -37.95, 0), App.Vector(20.1, -35.95, 0)), False)
sketch5.addGeometry(Part.ArcOfCircle(Part.Circle(App.Vector(22.1, -35.95, 0), App.Vector(0, 0, 1), 2), math.radians(180), math.radians(270)), False)
sketch5.addGeometry(Part.LineSegment(App.Vector(22.1, -37.95, 0), App.Vector(20.1, -37.95, 0)), False)
sketch5.addGeometry(Part.ArcOfCircle(Part.Circle(App.Vector(22.1, -35.95, 0), App.Vector(0, 0, 1), 2), math.radians(-90), math.radians(0)), False)
sketch5.addGeometry(Part.LineSegment(App.Vector(24.1, -35.95, 0), App.Vector(24.1, -37.95, 0)), False)
sketch5.addGeometry(Part.LineSegment(App.Vector(24.1, -37.95, 0), App.Vector(22.1, -37.95, 0)), False)
sketch5.addGeometry(Part.ArcOfCircle(Part.Circle(App.Vector(22.1, 35.95, 0), App.Vector(0, 0, 1), 2), math.radians(90), math.radians(180)), False)
sketch5.addGeometry(Part.LineSegment(App.Vector(20.1, 35.95, 0), App.Vector(20.1, 37.95, 0)), False)
sketch5.addGeometry(Part.LineSegment(App.Vector(20.1, 37.95, 0), App.Vector(22.1, 37.95, 0)), False)
sketch5.addGeometry(Part.LineSegment(App.Vector(20.1, 33.95, 0), App.Vector(20.1, 35.95, 0)), False)
sketch5.addGeometry(Part.ArcOfCircle(Part.Circle(App.Vector(22.1, 35.95, 0), App.Vector(0, 0, 1), 2), math.radians(180), math.radians(270)), False)
sketch5.addGeometry(Part.LineSegment(App.Vector(22.1, 33.95, 0), App.Vector(20.1, 33.95, 0)), False)
sketch5.addGeometry(Part.ArcOfCircle(Part.Circle(App.Vector(22.1, 35.95, 0), App.Vector(0, 0, 1), 2), math.radians(0), math.radians(90)), False)
sketch5.addGeometry(Part.LineSegment(App.Vector(22.1, 37.95, 0), App.Vector(24.1, 37.95, 0)), False)
sketch5.addGeometry(Part.LineSegment(App.Vector(24.1, 37.95, 0), App.Vector(24.1, 35.95, 0)), False)
sketch5.addGeometry(Part.LineSegment(App.Vector(24.1, 33.95, 0), App.Vector(22.1, 33.95, 0)), False)
sketch5.addGeometry(Part.ArcOfCircle(Part.Circle(App.Vector(22.1, 35.95, 0), App.Vector(0, 0, 1), 2), math.radians(-90), math.radians(0)), False)
sketch5.addGeometry(Part.LineSegment(App.Vector(24.1, 35.95, 0), App.Vector(24.1, 33.95, 0)), False)
sketch5.addGeometry(Part.ArcOfCircle(Part.Circle(App.Vector(-22.1, 35.95, 0), App.Vector(0, 0, 1), 2), math.radians(90), math.radians(180)), False)
sketch5.addGeometry(Part.LineSegment(App.Vector(-24.1, 35.95, 0), App.Vector(-24.1, 37.95, 0)), False)
sketch5.addGeometry(Part.LineSegment(App.Vector(-24.1, 37.95, 0), App.Vector(-22.1, 37.95, 0)), False)
sketch5.addGeometry(Part.LineSegment(App.Vector(-24.1, 33.95, 0), App.Vector(-24.1, 35.95, 0)), False)
sketch5.addGeometry(Part.ArcOfCircle(Part.Circle(App.Vector(-22.1, 35.95, 0), App.Vector(0, 0, 1), 2), math.radians(180), math.radians(270)), False)
sketch5.addGeometry(Part.LineSegment(App.Vector(-22.1, 33.95, 0), App.Vector(-24.1, 33.95, 0)), False)
sketch5.addGeometry(Part.ArcOfCircle(Part.Circle(App.Vector(-22.1, 35.95, 0), App.Vector(0, 0, 1), 2), math.radians(0), math.radians(90)), False)
sketch5.addGeometry(Part.LineSegment(App.Vector(-22.1, 37.95, 0), App.Vector(-20.1, 37.95, 0)), False)
sketch5.addGeometry(Part.LineSegment(App.Vector(-20.1, 37.95, 0), App.Vector(-20.1, 35.95, 0)), False)
sketch5.addGeometry(Part.LineSegment(App.Vector(-20.1, 33.95, 0), App.Vector(-22.1, 33.95, 0)), False)
sketch5.addGeometry(Part.ArcOfCircle(Part.Circle(App.Vector(-22.1, 35.95, 0), App.Vector(0, 0, 1), 2), math.radians(-90), math.radians(0)), False)
sketch5.addGeometry(Part.LineSegment(App.Vector(-20.1, 35.95, 0), App.Vector(-20.1, 33.95, 0)), False)
sketch5.addConstraint(Sketcher.Constraint("Coincident", 0, 2, 1, 1))
sketch5.addConstraint(Sketcher.Constraint("Tangent", 1, 2, 2, 1))
sketch5.addConstraint(Sketcher.Constraint("Tangent", 2, 2, 0, 1))
sketch5.addConstraint(Sketcher.Constraint("Tangent", 3, 2, 4, 1))
sketch5.addConstraint(Sketcher.Constraint("Coincident", 4, 2, 5, 1))
sketch5.addConstraint(Sketcher.Constraint("Tangent", 5, 2, 3, 1))
sketch5.addConstraint(Sketcher.Constraint("Tangent", 6, 2, 7, 1))
sketch5.addConstraint(Sketcher.Constraint("Tangent", 7, 2, 8, 1))
sketch5.addConstraint(Sketcher.Constraint("Coincident", 8, 2, 6, 1))
sketch5.addConstraint(Sketcher.Constraint("Tangent", 9, 2, 10, 1))
sketch5.addConstraint(Sketcher.Constraint("Coincident", 10, 2, 11, 1))
sketch5.addConstraint(Sketcher.Constraint("Tangent", 11, 2, 9, 1))
sketch5.addConstraint(Sketcher.Constraint("Coincident", 12, 2, 13, 1))
sketch5.addConstraint(Sketcher.Constraint("Tangent", 13, 2, 14, 1))
sketch5.addConstraint(Sketcher.Constraint("Tangent", 14, 2, 12, 1))
sketch5.addConstraint(Sketcher.Constraint("Coincident", 15, 2, 16, 1))
sketch5.addConstraint(Sketcher.Constraint("Tangent", 16, 2, 17, 1))
sketch5.addConstraint(Sketcher.Constraint("Tangent", 17, 2, 15, 1))
sketch5.addConstraint(Sketcher.Constraint("Tangent", 18, 2, 19, 1))
sketch5.addConstraint(Sketcher.Constraint("Tangent", 19, 2, 20, 1))
sketch5.addConstraint(Sketcher.Constraint("Coincident", 20, 2, 18, 1))
sketch5.addConstraint(Sketcher.Constraint("Tangent", 21, 2, 22, 1))
sketch5.addConstraint(Sketcher.Constraint("Coincident", 22, 2, 23, 1))
sketch5.addConstraint(Sketcher.Constraint("Tangent", 23, 2, 21, 1))
sketch5.addConstraint(Sketcher.Constraint("Tangent", 24, 2, 25, 1))
sketch5.addConstraint(Sketcher.Constraint("Coincident", 25, 2, 26, 1))
sketch5.addConstraint(Sketcher.Constraint("Tangent", 26, 2, 24, 1))
sketch5.addConstraint(Sketcher.Constraint("Tangent", 27, 2, 28, 1))
sketch5.addConstraint(Sketcher.Constraint("Tangent", 28, 2, 29, 1))
sketch5.addConstraint(Sketcher.Constraint("Coincident", 29, 2, 27, 1))
sketch5.addConstraint(Sketcher.Constraint("Tangent", 30, 2, 31, 1))
sketch5.addConstraint(Sketcher.Constraint("Coincident", 31, 2, 32, 1))
sketch5.addConstraint(Sketcher.Constraint("Tangent", 32, 2, 30, 1))
sketch5.addConstraint(Sketcher.Constraint("Tangent", 33, 2, 34, 1))
sketch5.addConstraint(Sketcher.Constraint("Tangent", 34, 2, 35, 1))
sketch5.addConstraint(Sketcher.Constraint("Coincident", 35, 2, 33, 1))
sketch5.addConstraint(Sketcher.Constraint("Tangent", 36, 2, 37, 1))
sketch5.addConstraint(Sketcher.Constraint("Coincident", 37, 2, 38, 1))
sketch5.addConstraint(Sketcher.Constraint("Tangent", 38, 2, 36, 1))
sketch5.addConstraint(Sketcher.Constraint("Tangent", 39, 2, 40, 1))
sketch5.addConstraint(Sketcher.Constraint("Tangent", 40, 2, 41, 1))
sketch5.addConstraint(Sketcher.Constraint("Coincident", 41, 2, 39, 1))
sketch5.addConstraint(Sketcher.Constraint("Tangent", 42, 2, 43, 1))
sketch5.addConstraint(Sketcher.Constraint("Coincident", 43, 2, 44, 1))
sketch5.addConstraint(Sketcher.Constraint("Tangent", 44, 2, 42, 1))
sketch5.addConstraint(Sketcher.Constraint("Tangent", 45, 2, 46, 1))
sketch5.addConstraint(Sketcher.Constraint("Tangent", 46, 2, 47, 1))
sketch5.addConstraint(Sketcher.Constraint("Coincident", 47, 2, 45, 1))
sketch5.addConstraint(Sketcher.Constraint("Horizontal", 0))
sketch5.addConstraint(Sketcher.Constraint("Vertical", 1))
sketch5.addConstraint(Sketcher.Constraint("Vertical", 4))
sketch5.addConstraint(Sketcher.Constraint("Horizontal", 5))
sketch5.addConstraint(Sketcher.Constraint("Horizontal", 6))
sketch5.addConstraint(Sketcher.Constraint("Vertical", 8))
sketch5.addConstraint(Sketcher.Constraint("Horizontal", 10))
sketch5.addConstraint(Sketcher.Constraint("Vertical", 11))
sketch5.addConstraint(Sketcher.Constraint("Vertical", 12))
sketch5.addConstraint(Sketcher.Constraint("Horizontal", 13))
sketch5.addConstraint(Sketcher.Constraint("Horizontal", 15))
sketch5.addConstraint(Sketcher.Constraint("Vertical", 16))
sketch5.addConstraint(Sketcher.Constraint("Vertical", 18))
sketch5.addConstraint(Sketcher.Constraint("Horizontal", 20))
sketch5.addConstraint(Sketcher.Constraint("Vertical", 22))
sketch5.addConstraint(Sketcher.Constraint("Horizontal", 23))
sketch5.addConstraint(Sketcher.Constraint("Vertical", 25))
sketch5.addConstraint(Sketcher.Constraint("Horizontal", 26))
sketch5.addConstraint(Sketcher.Constraint("Vertical", 27))
sketch5.addConstraint(Sketcher.Constraint("Horizontal", 29))
sketch5.addConstraint(Sketcher.Constraint("Horizontal", 31))
sketch5.addConstraint(Sketcher.Constraint("Vertical", 32))
sketch5.addConstraint(Sketcher.Constraint("Horizontal", 33))
sketch5.addConstraint(Sketcher.Constraint("Vertical", 35))
sketch5.addConstraint(Sketcher.Constraint("Vertical", 37))
sketch5.addConstraint(Sketcher.Constraint("Horizontal", 38))
sketch5.addConstraint(Sketcher.Constraint("Vertical", 39))
sketch5.addConstraint(Sketcher.Constraint("Horizontal", 41))
sketch5.addConstraint(Sketcher.Constraint("Horizontal", 43))
sketch5.addConstraint(Sketcher.Constraint("Vertical", 44))
sketch5.addConstraint(Sketcher.Constraint("Horizontal", 45))
sketch5.addConstraint(Sketcher.Constraint("Vertical", 47))
sketch5.addConstraint(Sketcher.Constraint("Coincident", 3, 3, 2, 3))
sketch5.addConstraint(Sketcher.Constraint("Coincident", 7, 3, 2, 3))
sketch5.addConstraint(Sketcher.Constraint("Coincident", 9, 3, 2, 3))
sketch5.addConstraint(Sketcher.Constraint("Coincident", 17, 3, 14, 3))
sketch5.addConstraint(Sketcher.Constraint("Coincident", 19, 3, 14, 3))
sketch5.addConstraint(Sketcher.Constraint("Coincident", 21, 3, 14, 3))
sketch5.addConstraint(Sketcher.Constraint("Coincident", 28, 3, 24, 3))
sketch5.addConstraint(Sketcher.Constraint("Coincident", 30, 3, 24, 3))
sketch5.addConstraint(Sketcher.Constraint("Coincident", 34, 3, 24, 3))
sketch5.addConstraint(Sketcher.Constraint("Coincident", 40, 3, 36, 3))
sketch5.addConstraint(Sketcher.Constraint("Coincident", 42, 3, 36, 3))
sketch5.addConstraint(Sketcher.Constraint("Coincident", 46, 3, 36, 3))
sketch5.addConstraint(Sketcher.Constraint("Equal", 2, 3))
sketch5.addConstraint(Sketcher.Constraint("Equal", 3, 7))
sketch5.addConstraint(Sketcher.Constraint("Equal", 7, 9))
sketch5.addConstraint(Sketcher.Constraint("Equal", 9, 14))
sketch5.addConstraint(Sketcher.Constraint("Equal", 14, 17))
sketch5.addConstraint(Sketcher.Constraint("Equal", 17, 19))
sketch5.addConstraint(Sketcher.Constraint("Equal", 19, 21))
sketch5.addConstraint(Sketcher.Constraint("Equal", 21, 24))
sketch5.addConstraint(Sketcher.Constraint("Equal", 24, 28))
sketch5.addConstraint(Sketcher.Constraint("Equal", 28, 30))
sketch5.addConstraint(Sketcher.Constraint("Equal", 30, 34))
sketch5.addConstraint(Sketcher.Constraint("Equal", 34, 36))
sketch5.addConstraint(Sketcher.Constraint("Equal", 36, 40))
sketch5.addConstraint(Sketcher.Constraint("Equal", 40, 42))
sketch5.addConstraint(Sketcher.Constraint("Equal", 42, 46))
sketch5.addConstraint(Sketcher.Constraint("Symmetric", 2, 3, 24, 3, -1, 1))
sketch5.addConstraint(Sketcher.Constraint("Symmetric", 14, 3, 36, 3, -1, 1))
sketch5.addConstraint(Sketcher.Constraint("Symmetric", 2, 3, 14, 3, -2))
sketch5.addConstraint(Sketcher.Constraint("Radius", 2, Q("2 mm")))
sketch5.addConstraint(Sketcher.Constraint("DistanceX", 2, 3, -1, 1, Q("22.1 mm")))
sketch5.addConstraint(Sketcher.Constraint("DistanceY", 2, 3, -1, 1, Q("35.95 mm")))
pocket4 = doc.addObject("PartDesign::Pocket", "Pocket003")
body.addObject(pocket4)
pocket4.Profile = sketch5
pocket4.Length = 0.2
pocket4.Reversed = True
doc.recompute()

chamfer = doc.addObject("PartDesign::Chamfer", "Chamfer")
body.addObject(chamfer)
chamfer.Base = (pocket4, edges_at(pocket4, [(-47.797, 1.085, 4), (42.203, 1.085, 4)]))
chamfer.Size = 2

doc.recompute()
